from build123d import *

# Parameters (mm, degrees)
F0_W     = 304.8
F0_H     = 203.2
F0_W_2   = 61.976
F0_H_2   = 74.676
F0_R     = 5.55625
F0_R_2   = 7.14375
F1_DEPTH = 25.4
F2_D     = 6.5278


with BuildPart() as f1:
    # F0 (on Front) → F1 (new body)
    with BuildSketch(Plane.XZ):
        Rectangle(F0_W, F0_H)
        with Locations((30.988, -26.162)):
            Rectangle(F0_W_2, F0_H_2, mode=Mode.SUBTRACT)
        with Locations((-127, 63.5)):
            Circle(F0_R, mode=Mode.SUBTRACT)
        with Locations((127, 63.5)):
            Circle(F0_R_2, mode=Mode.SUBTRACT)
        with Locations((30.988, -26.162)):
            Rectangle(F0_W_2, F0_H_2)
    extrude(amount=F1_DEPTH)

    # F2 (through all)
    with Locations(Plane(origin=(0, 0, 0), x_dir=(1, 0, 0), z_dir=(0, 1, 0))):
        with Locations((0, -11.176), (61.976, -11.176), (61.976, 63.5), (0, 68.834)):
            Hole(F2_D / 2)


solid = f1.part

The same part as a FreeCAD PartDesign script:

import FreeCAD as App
import Part
import Sketcher
from FreeCAD import Vector
Q = App.Units.Quantity

doc = App.newDocument("Part")
body = doc.addObject("PartDesign::Body", "Body")

# Sketch on XZ plane
sketch1 = body.newObject("Sketcher::SketchObject", "Sketch")
sketch1.AttachmentSupport = (doc.getObject("XZ_Plane"), [""])
sketch1.MapMode = "FlatFace"
sketch1.addGeometry(Part.LineSegment(Vector(-152, 102, 0), Vector(-152, -102, 0)), False)
sketch1.addGeometry(Part.LineSegment(Vector(-152, -102, 0), Vector(152, -102, 0)), False)
sketch1.addGeometry(Part.LineSegment(Vector(152, -102, 0), Vector(152, 102, 0)), False)
sketch1.addGeometry(Part.LineSegment(Vector(152, 102, 0), Vector(-152, 102, 0)), False)
sketch1.addGeometry(Part.Circle(Vector(-127, 64, 0), Vector(0, 0, 1), 6), False)
sketch1.addGeometry(Part.Circle(Vector(127, 64, 0), Vector(0, 0, 1), 7), False)
sketch1.addConstraint(Sketcher.Constraint("Coincident", 0, 2, 1, 1))
sketch1.addConstraint(Sketcher.Constraint("Coincident", 1, 2, 2, 1))
sketch1.addConstraint(Sketcher.Constraint("Coincident", 2, 2, 3, 1))
sketch1.addConstraint(Sketcher.Constraint("Coincident", 3, 2, 0, 1))
sketch1.addConstraint(Sketcher.Constraint("Vertical", 0))
sketch1.addConstraint(Sketcher.Constraint("Horizontal", 1))
sketch1.addConstraint(Sketcher.Constraint("Vertical", 2))
sketch1.addConstraint(Sketcher.Constraint("Horizontal", 3))
sketch1.addConstraint(Sketcher.Constraint("Symmetric", 0, 2, 2, 2, -1, 1))
sketch1.addConstraint(Sketcher.Constraint("Symmetric", 4, 3, 5, 3, -2))
sketch1.addConstraint(Sketcher.Constraint("DistanceX", 1, 1, 1, 2, Q("12 in")))
sketch1.addConstraint(Sketcher.Constraint("DistanceY", 0, 2, 0, 1, Q("8 in")))
sketch1.addConstraint(Sketcher.Constraint("Diameter", 4, Q("0.4375 in")))
sketch1.addConstraint(Sketcher.Constraint("Diameter", 5, Q("0.5625 in")))
sketch1.addConstraint(Sketcher.Constraint("DistanceX", 4, 3, -1, 1, Q("5 in")))
sketch1.addConstraint(Sketcher.Constraint("DistanceY", -1, 1, 4, 3, Q("2.5 in")))
pad1 = body.newObject("PartDesign::Pad", "Pad")
pad1.Profile = sketch1
pad1.Length = Q("1 in")

# Sketch on XZ plane
sketch2 = body.newObject("Sketcher::SketchObject", "Sketch001")
sketch2.AttachmentSupport = (doc.getObject("XZ_Plane"), [""])
sketch2.MapMode = "FlatFace"
sketch2.addGeometry(Part.Circle(Vector(0, 11.2, 0), Vector(0, 0, 1), 3.3), False)
sketch2.addGeometry(Part.Circle(Vector(62, 11.2, 0), Vector(0, 0, 1), 3.3), False)
sketch2.addGeometry(Part.Circle(Vector(62, -63.5, 0), Vector(0, 0, 1), 3.3), False)
sketch2.addGeometry(Part.Circle(Vector(0, -68.8, 0), Vector(0, 0, 1), 3.3), False)
sketch2.addConstraint(Sketcher.Constraint("Equal", 0, 1))
sketch2.addConstraint(Sketcher.Constraint("Equal", 1, 2))
sketch2.addConstraint(Sketcher.Constraint("Equal", 2, 3))
sketch2.addConstraint(Sketcher.Constraint("PointOnObject", 0, 3, -2))
sketch2.addConstraint(Sketcher.Constraint("PointOnObject", 3, 3, -2))
sketch2.addConstraint(Sketcher.Constraint("Horizontal", 0, 3, 1, 3))
sketch2.addConstraint(Sketcher.Constraint("Vertical", 1, 3, 2, 3))
sketch2.addConstraint(Sketcher.Constraint("Diameter", 0, Q("0.257 in")))
sketch2.addConstraint(Sketcher.Constraint("DistanceY", 2, 3, -1, 1, Q("2.5 in")))
sketch2.addConstraint(Sketcher.Constraint("DistanceY", -1, 1, 0, 3, Q("0.44 in")))
sketch2.addConstraint(Sketcher.Constraint("DistanceX", -1, 1, 1, 3, Q("2.44 in")))
sketch2.addConstraint(Sketcher.Constraint("DistanceY", 3, 3, -1, 1, Q("2.71 in")))
doc.recompute()
hole = body.newObject("PartDesign::Hole", "Hole")
hole.Profile = sketch2
hole.ThreadType = "None"
hole.Diameter = Q("0.257 in")
hole.DepthType = "ThroughAll"
hole.Reversed = True

doc.recompute()
